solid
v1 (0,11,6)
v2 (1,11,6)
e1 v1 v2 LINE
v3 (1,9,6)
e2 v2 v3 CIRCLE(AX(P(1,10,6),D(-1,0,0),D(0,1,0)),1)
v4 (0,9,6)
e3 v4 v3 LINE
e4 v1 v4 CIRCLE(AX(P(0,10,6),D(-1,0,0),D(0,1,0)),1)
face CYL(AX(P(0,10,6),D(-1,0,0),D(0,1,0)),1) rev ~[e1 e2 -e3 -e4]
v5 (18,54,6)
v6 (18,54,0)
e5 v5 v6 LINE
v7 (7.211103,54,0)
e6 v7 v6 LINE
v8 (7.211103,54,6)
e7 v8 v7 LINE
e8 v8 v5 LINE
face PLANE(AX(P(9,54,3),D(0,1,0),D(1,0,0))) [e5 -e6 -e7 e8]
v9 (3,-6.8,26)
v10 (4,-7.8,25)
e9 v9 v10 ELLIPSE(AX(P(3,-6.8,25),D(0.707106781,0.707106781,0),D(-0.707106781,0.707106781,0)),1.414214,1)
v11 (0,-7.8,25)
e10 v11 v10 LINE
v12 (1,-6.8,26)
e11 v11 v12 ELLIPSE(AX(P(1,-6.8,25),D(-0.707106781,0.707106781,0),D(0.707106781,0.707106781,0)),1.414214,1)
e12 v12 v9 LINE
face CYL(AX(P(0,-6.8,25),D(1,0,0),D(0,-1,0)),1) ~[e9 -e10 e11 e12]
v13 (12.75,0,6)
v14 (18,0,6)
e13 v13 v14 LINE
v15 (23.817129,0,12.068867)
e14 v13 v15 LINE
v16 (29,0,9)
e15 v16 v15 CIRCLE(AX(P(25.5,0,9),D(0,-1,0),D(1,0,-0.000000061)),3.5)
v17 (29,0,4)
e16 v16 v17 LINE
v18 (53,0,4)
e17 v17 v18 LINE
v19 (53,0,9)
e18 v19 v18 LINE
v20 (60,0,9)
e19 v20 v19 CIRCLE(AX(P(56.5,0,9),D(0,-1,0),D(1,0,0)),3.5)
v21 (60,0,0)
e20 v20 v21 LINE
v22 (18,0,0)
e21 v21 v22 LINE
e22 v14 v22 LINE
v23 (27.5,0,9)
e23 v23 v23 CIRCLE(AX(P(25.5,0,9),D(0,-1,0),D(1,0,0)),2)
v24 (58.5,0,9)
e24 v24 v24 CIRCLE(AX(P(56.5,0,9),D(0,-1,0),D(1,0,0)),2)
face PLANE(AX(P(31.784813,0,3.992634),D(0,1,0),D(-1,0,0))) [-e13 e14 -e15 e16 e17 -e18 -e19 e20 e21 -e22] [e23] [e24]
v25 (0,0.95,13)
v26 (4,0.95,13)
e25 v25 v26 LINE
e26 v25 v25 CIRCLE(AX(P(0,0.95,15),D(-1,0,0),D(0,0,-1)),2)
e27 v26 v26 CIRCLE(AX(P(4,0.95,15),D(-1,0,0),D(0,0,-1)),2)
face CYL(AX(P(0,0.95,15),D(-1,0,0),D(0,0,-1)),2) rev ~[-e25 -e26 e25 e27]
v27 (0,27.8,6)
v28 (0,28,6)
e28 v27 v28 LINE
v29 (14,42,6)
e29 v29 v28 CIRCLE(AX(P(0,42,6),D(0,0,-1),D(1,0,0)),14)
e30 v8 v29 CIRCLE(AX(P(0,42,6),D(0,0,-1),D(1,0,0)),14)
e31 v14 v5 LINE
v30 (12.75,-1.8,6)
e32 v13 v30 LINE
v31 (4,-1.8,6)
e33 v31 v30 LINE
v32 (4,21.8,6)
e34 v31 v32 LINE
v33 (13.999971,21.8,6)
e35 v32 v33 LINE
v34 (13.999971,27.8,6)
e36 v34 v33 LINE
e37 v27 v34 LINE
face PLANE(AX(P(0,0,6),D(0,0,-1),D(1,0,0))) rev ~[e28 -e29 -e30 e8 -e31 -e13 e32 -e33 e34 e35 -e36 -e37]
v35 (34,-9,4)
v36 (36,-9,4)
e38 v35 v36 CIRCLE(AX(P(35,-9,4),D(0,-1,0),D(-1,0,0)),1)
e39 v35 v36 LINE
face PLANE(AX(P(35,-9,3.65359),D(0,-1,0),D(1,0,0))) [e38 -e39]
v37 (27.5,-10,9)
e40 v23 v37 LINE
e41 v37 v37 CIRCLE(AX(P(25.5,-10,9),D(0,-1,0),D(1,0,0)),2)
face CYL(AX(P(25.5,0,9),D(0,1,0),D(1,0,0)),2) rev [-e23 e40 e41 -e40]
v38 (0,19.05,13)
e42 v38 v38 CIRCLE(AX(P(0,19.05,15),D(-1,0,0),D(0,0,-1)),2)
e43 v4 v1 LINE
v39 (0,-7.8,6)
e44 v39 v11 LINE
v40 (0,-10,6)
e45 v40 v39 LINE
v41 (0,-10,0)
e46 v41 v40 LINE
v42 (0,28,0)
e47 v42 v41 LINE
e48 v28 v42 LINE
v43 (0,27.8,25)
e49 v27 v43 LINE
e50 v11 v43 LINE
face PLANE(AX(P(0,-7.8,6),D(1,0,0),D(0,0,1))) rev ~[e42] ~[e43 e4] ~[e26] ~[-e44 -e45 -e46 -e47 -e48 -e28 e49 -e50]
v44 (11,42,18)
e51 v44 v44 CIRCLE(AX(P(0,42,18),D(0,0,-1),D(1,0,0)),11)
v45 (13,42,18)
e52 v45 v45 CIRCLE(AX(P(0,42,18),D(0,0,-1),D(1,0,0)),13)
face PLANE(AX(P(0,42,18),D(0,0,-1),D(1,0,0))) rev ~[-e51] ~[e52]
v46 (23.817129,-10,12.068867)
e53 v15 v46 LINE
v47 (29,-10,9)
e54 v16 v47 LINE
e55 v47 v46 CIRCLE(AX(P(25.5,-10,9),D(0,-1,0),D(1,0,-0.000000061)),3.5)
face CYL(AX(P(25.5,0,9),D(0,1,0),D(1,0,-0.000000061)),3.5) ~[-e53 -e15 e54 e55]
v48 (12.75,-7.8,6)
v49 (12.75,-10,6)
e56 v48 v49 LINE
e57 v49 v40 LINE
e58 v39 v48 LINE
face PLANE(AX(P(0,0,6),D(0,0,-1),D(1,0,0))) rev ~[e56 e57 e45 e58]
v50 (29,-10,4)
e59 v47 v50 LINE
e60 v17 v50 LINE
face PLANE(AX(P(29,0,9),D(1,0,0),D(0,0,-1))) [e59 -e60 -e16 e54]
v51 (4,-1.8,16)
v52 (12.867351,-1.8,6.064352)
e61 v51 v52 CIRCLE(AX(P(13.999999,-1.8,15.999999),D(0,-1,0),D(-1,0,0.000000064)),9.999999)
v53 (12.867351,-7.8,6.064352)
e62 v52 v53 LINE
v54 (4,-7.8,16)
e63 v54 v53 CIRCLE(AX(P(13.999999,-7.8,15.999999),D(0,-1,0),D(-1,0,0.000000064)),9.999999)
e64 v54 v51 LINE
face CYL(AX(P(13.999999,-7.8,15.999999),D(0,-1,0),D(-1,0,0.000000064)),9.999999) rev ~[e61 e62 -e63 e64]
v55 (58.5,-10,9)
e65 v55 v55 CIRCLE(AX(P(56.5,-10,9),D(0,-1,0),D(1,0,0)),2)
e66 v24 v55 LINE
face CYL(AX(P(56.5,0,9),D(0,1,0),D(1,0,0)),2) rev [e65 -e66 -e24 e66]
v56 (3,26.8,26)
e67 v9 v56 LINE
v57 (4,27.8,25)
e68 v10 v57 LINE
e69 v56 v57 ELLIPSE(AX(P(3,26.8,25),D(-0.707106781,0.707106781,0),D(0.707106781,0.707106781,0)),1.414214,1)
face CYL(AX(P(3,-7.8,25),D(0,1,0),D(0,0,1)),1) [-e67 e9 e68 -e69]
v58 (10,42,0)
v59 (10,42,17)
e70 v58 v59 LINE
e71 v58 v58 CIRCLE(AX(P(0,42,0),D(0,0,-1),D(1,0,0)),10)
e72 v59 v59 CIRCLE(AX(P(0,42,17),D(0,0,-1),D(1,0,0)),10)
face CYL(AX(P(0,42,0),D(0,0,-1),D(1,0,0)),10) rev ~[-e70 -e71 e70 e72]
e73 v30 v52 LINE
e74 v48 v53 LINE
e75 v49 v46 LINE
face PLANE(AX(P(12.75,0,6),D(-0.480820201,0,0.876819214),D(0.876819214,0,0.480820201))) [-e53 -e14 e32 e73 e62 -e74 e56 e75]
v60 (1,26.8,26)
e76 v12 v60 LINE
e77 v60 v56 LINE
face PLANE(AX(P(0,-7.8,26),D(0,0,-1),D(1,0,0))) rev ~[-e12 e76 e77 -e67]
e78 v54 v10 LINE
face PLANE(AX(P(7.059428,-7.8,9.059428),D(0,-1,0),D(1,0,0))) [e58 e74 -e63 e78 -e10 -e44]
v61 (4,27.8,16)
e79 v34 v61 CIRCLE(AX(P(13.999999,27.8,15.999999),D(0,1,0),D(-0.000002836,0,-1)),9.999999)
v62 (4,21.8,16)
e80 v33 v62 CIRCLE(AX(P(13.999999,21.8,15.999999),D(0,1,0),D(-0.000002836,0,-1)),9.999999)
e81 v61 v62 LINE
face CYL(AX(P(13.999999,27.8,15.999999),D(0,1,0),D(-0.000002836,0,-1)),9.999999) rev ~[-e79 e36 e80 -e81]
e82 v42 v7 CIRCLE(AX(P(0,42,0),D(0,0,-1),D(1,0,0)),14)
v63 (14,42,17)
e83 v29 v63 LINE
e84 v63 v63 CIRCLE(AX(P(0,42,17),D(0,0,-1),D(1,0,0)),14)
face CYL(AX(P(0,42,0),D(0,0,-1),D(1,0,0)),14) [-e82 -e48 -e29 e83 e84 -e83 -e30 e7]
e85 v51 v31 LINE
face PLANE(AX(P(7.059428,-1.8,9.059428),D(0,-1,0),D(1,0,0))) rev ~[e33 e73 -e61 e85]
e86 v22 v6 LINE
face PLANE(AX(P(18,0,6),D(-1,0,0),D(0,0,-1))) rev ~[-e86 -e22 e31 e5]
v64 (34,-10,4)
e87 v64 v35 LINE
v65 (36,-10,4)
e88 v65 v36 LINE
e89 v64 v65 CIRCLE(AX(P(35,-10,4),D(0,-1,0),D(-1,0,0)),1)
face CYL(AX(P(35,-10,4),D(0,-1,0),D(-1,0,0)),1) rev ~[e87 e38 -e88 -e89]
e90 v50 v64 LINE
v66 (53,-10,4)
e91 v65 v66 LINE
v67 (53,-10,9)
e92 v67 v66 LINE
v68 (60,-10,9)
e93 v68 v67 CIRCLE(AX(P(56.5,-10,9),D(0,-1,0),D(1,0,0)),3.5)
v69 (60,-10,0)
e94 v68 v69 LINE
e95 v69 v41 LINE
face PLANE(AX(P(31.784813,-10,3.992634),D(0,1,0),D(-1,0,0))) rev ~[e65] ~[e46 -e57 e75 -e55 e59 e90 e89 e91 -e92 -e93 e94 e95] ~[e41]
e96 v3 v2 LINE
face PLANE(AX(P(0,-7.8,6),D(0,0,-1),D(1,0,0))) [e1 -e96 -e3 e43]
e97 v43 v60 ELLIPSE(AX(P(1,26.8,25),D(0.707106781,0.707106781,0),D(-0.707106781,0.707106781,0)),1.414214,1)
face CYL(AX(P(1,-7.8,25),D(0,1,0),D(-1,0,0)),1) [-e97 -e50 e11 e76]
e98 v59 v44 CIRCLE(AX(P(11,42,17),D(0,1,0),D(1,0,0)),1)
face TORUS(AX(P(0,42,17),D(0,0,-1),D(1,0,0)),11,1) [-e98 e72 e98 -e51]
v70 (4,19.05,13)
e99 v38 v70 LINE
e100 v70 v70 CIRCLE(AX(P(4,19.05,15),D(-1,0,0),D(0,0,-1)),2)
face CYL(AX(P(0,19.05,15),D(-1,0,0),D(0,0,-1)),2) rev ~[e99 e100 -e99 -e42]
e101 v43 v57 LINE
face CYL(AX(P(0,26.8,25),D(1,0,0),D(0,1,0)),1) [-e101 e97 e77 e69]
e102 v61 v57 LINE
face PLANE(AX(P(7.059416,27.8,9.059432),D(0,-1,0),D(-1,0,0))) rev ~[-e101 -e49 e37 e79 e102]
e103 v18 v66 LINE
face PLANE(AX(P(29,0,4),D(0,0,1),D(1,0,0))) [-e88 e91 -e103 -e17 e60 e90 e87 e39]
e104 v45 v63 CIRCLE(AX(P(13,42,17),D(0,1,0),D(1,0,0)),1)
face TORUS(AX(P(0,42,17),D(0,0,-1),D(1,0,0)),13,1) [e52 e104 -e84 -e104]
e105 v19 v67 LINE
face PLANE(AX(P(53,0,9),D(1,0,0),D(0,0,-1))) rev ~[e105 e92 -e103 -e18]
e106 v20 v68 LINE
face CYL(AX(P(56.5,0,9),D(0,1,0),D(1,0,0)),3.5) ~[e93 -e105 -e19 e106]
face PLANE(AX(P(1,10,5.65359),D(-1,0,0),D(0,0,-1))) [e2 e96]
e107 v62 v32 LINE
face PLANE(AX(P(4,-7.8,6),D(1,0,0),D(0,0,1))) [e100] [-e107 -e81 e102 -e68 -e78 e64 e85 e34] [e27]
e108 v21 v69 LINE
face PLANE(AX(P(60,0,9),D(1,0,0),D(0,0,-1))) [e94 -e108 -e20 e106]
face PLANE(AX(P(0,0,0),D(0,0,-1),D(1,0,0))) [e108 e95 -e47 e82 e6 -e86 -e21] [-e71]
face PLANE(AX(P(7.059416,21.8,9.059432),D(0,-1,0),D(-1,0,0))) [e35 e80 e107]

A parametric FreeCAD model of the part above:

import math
import FreeCAD as App
import Part
import Sketcher


def edges_at(feature, points):
    """Names of the edges that pass closest to the given points."""
    edges = feature.Shape.Edges
    near = lambda p: min(range(len(edges)), key=lambda i: edges[i].distToShape(Part.Vertex(*p))[0])
    return sorted({f"Edge{near(p) + 1}" for p in points})

doc = App.newDocument("Part")
body = doc.addObject("PartDesign::Body", "Body")

sketch1 = body.newObject("Sketcher::SketchObject", "Sketch")
sketch1.AttachmentSupport = (doc.getObject("XZ_Plane"), [""])
sketch1.MapMode = "FlatFace"
sketch1.addGeometry([
    Part.LineSegment(App.Vector(0, 0, 0), App.Vector(60, 0, 0)),
    Part.LineSegment(App.Vector(60, 0, 0), App.Vector(60, 9, 0)),
    Part.ArcOfCircle(Part.Circle(App.Vector(56.5, 9, 0), App.Vector(0, 0, 1), 3.5), math.radians(0), math.radians(180)),
    Part.LineSegment(App.Vector(53, 9, 0), App.Vector(53, 4, 0)),
    Part.LineSegment(App.Vector(53, 4, 0), App.Vector(29, 4, 0)),
    Part.LineSegment(App.Vector(29, 4, 0), App.Vector(29, 9, 0)),
    Part.ArcOfCircle(Part.Circle(App.Vector(25.5, 9, 0), App.Vector(0, 0, 1), 3.5), math.radians(0), math.radians(119)),
    Part.LineSegment(App.Vector(23.8, 12.1, 0), App.Vector(12.8, 6, 0)),
    Part.LineSegment(App.Vector(12.8, 6, 0), App.Vector(0, 6, 0)),
    Part.LineSegment(App.Vector(0, 6, 0), App.Vector(0, 0, 0)),
    Part.Circle(App.Vector(56.5, 9, 0), App.Vector(0, 0, 1), 2),
    Part.Circle(App.Vector(25.5, 9, 0), App.Vector(0, 0, 1), 2),
], False)
sketch1.addConstraint([
    Sketcher.Constraint("Coincident", 0, 2, 1, 1),
    Sketcher.Constraint("Tangent", 1, 2, 2, 1),
    Sketcher.Constraint("Tangent", 2, 2, 3, 1),
    Sketcher.Constraint("Coincident", 3, 2, 4, 1),
    Sketcher.Constraint("Coincident", 4, 2, 5, 1),
    Sketcher.Constraint("Tangent", 5, 2, 6, 1),
    Sketcher.Constraint("Tangent", 6, 2, 7, 1),
    Sketcher.Constraint("Coincident", 7, 2, 8, 1),
    Sketcher.Constraint("Coincident", 8, 2, 9, 1),
    Sketcher.Constraint("Coincident", 9, 2, 0, 1),
    Sketcher.Constraint("Horizontal", 0),
    Sketcher.Constraint("Vertical", 1),
    Sketcher.Constraint("Vertical", 3),
    Sketcher.Constraint("Horizontal", 4),
    Sketcher.Constraint("Vertical", 5),
    Sketcher.Constraint("Horizontal", 8),
    Sketcher.Constraint("Vertical", 9),
    Sketcher.Constraint("Coincident", 9, 2, -1, 1),
    Sketcher.Constraint("Coincident", 10, 3, 2, 3),
    Sketcher.Constraint("Coincident", 11, 3, 6, 3),
    Sketcher.Constraint("Equal", 2, 6),
    Sketcher.Constraint("Equal", 10, 11),
    Sketcher.Constraint("Horizontal", 2, 3, 6, 3),
    Sketcher.Constraint("Diameter", 10, 4.0),
    Sketcher.Constraint("Radius", 2, 3.5),
    Sketcher.Constraint("DistanceX", 0, 1, 0, 2, 60.0),
    Sketcher.Constraint("DistanceX", 4, 2, 4, 1, 24.0),
    Sketcher.Constraint("DistanceY", 1, 1, 1, 2, 9.0),
    Sketcher.Constraint("DistanceY", 3, 2, 3, 1, 5.0),
    Sketcher.Constraint("DistanceY", 9, 2, 9, 1, 6.0),
    Sketcher.Constraint("DistanceX", 8, 2, 8, 1, 12.75),
])
pad1 = body.newObject("PartDesign::Pad", "Pad")
pad1.Profile = sketch1
pad1.Length = 10

sketch2 = body.newObject("Sketcher::SketchObject", "Sketch001")
sketch2.AttachmentSupport = (doc.getObject("XZ_Plane"), [""])
sketch2.MapMode = "FlatFace"
sketch2.AttachmentOffset = App.Placement(App.Vector(0, 0, 10), App.Rotation())
sketch2.addGeometry([
    Part.ArcOfCircle(Part.Circle(App.Vector(35, 4, 0), App.Vector(0, 0, 1), 1), math.radians(180), math.radians(360)),
    Part.LineSegment(App.Vector(36, 4, 0), App.Vector(34, 4, 0)),
], False)
sketch2.addConstraint([
    Sketcher.Constraint("Coincident", 0, 1, 1, 2),
    Sketcher.Constraint("Coincident", 1, 1, 0, 2),
    Sketcher.Constraint("Horizontal", 1),
    Sketcher.Constraint("Radius", 0, 1.0),
    Sketcher.Constraint("DistanceX", -1, 1, 0, 3, 35.0),
    Sketcher.Constraint("DistanceY", -1, 1, 0, 3, 4.0),
    Sketcher.Constraint("DistanceY", -1, 1, 0, 1, 4.0),
])
pocket1 = body.newObject("PartDesign::Pocket", "Pocket")
pocket1.Profile = sketch2
pocket1.Length = 1

sketch3 = body.newObject("Sketcher::SketchObject", "Sketch002")
sketch3.AttachmentSupport = (doc.getObject("XZ_Plane"), [""])
sketch3.MapMode = "FlatFace"
sketch3.addGeometry([
    Part.LineSegment(App.Vector(0, 0, 0), App.Vector(0, 6, 0)),
    Part.LineSegment(App.Vector(0, 6, 0), App.Vector(18, 6, 0)),
    Part.LineSegment(App.Vector(18, 6, 0), App.Vector(18, 0, 0)),
    Part.LineSegment(App.Vector(18, 0, 0), App.Vector(0, 0, 0)),
], False)
sketch3.addConstraint([
    Sketcher.Constraint("Coincident", 0, 2, 1, 1),
    Sketcher.Constraint("Coincident", 1, 2, 2, 1),
    Sketcher.Constraint("Coincident", 2, 2, 3, 1),
    Sketcher.Constraint("Coincident", 3, 2, 0, 1),
    Sketcher.Constraint("Vertical", 0),
    Sketcher.Constraint("Horizontal", 1),
    Sketcher.Constraint("Vertical", 2),
    Sketcher.Constraint("Horizontal", 3),
    Sketcher.Constraint("Coincident", 3, 2, -1, 1),
    Sketcher.Constraint("DistanceX", 1, 1, 1, 2, 18.0),
    Sketcher.Constraint("DistanceY", 0, 1, 0, 2, 6.0),
])
pad2 = body.newObject("PartDesign::Pad", "Pad001")
pad2.Profile = sketch3
pad2.Length = 54
pad2.Reversed = True

sketch4 = body.newObject("Sketcher::SketchObject", "Sketch003")
sketch4.AttachmentSupport = (doc.getObject("YZ_Plane"), [""])
sketch4.MapMode = "FlatFace"
sketch4.addGeometry([
    Part.LineSegment(App.Vector(9, 6, 0), App.Vector(11, 6, 0)),
    Part.ArcOfCircle(Part.Circle(App.Vector(10, 6, 0), App.Vector(0, 0, 1), 1), math.radians(180), math.radians(360)),
], False)
sketch4.addConstraint([
    Sketcher.Constraint("Coincident", 0, 1, 1, 1),
    Sketcher.Constraint("Coincident", 1, 2, 0, 2),
    Sketcher.Constraint("Horizontal", 0),
    Sketcher.Constraint("Horizontal", 1, 3, 0, 1),
    Sketcher.Constraint("Radius", 1, 1.0),
    Sketcher.Constraint("DistanceX", -1, 1, 1, 3, 10.0),
    Sketcher.Constraint("DistanceY", -1, 1, 1, 3, 6.0),
])
pocket2 = body.newObject("PartDesign::Pocket", "Pocket001")
pocket2.Profile = sketch4
pocket2.Length = 1
pocket2.Reversed = True

sketch5 = body.newObject("Sketcher::SketchObject", "Sketch004")
sketch5.AttachmentSupport = (doc.getObject("XY_Plane"), [""])
sketch5.MapMode = "FlatFace"
sketch5.addGeometry(Part.Circle(App.Vector(0, 42, 0), App.Vector(0, 0, 1), 14), False)
sketch5.addConstraint([
    Sketcher.Constraint("PointOnObject", 0, 3, -2),
    Sketcher.Constraint("Diameter", 0, 28.0),
    Sketcher.Constraint("DistanceY", -1, 1, 0, 3, 42.0),
])
pad3 = body.newObject("PartDesign::Pad", "Pad002")
pad3.Profile = sketch5
pad3.Length = 18

sketch6 = body.newObject("Sketcher::SketchObject", "Sketch005")
sketch6.AttachmentSupport = (doc.getObject("XY_Plane"), [""])
sketch6.MapMode = "FlatFace"
sketch6.addGeometry(Part.Circle(App.Vector(0, 42, 0), App.Vector(0, 0, 1), 10), False)
sketch6.addConstraint([
    Sketcher.Constraint("PointOnObject", 0, 3, -2),
    Sketcher.Constraint("Diameter", 0, 20.0),
    Sketcher.Constraint("DistanceY", -1, 1, 0, 3, 42.0),
])
pocket3 = body.newObject("PartDesign::Pocket", "Pocket002")
pocket3.Profile = sketch6
pocket3.Type = "ThroughAll"
pocket3.Reversed = True

sketch7 = body.newObject("Sketcher::SketchObject", "Sketch006")
sketch7.AttachmentSupport = (doc.getObject("XZ_Plane"), [""])
sketch7.MapMode = "FlatFace"
sketch7.AttachmentOffset = App.Placement(App.Vector(0, 0, 7.8), App.Rotation())
sketch7.addGeometry([
    Part.LineSegment(App.Vector(0, 26, 0), App.Vector(0, 6, 0)),
    Part.LineSegment(App.Vector(0, 6, 0), App.Vector(4, 6, 0)),
    Part.LineSegment(App.Vector(4, 6, 0), App.Vector(4, 26, 0)),
    Part.LineSegment(App.Vector(4, 26, 0), App.Vector(0, 26, 0)),
], False)
sketch7.addConstraint([
    Sketcher.Constraint("Coincident", 0, 2, 1, 1),
    Sketcher.Constraint("Coincident", 1, 2, 2, 1),
    Sketcher.Constraint("Coincident", 2, 2, 3, 1),
    Sketcher.Constraint("Coincident", 3, 2, 0, 1),
    Sketcher.Constraint("Vertical", 0),
    Sketcher.Constraint("Horizontal", 1),
    Sketcher.Constraint("Vertical", 2),
    Sketcher.Constraint("Horizontal", 3),
    Sketcher.Constraint("PointOnObject", 0, 2, -2),
    Sketcher.Constraint("DistanceX", 1, 1, 1, 2, 4.0),
    Sketcher.Constraint("DistanceY", 0, 2, 0, 1, 20.0),
    Sketcher.Constraint("DistanceY", -1, 1, 0, 2, 6.0),
])
pad4 = body.newObject("PartDesign::Pad", "Pad003")
pad4.Profile = sketch7
pad4.Length = 35.6
pad4.Reversed = True

sketch8 = body.newObject("Sketcher::SketchObject", "Sketch007")
sketch8.AttachmentSupport = (doc.getObject("YZ_Plane"), [""])
sketch8.MapMode = "FlatFace"
sketch8.addGeometry(Part.Circle(App.Vector(0.9, 15, 0), App.Vector(0, 0, 1), 2), False)
sketch8.addConstraint([
    Sketcher.Constraint("Diameter", 0, 4.0),
    Sketcher.Constraint("DistanceY", -1, 1, 0, 3, 15.0),
    Sketcher.Constraint("DistanceX", -1, 1, 0, 3, 0.95),
])
pocket4 = body.newObject("PartDesign::Pocket", "Pocket003")
pocket4.Profile = sketch8
pocket4.Length = 4
pocket4.Reversed = True

sketch9 = body.newObject("Sketcher::SketchObject", "Sketch008")
sketch9.AttachmentSupport = (doc.getObject("YZ_Plane"), [""])
sketch9.MapMode = "FlatFace"
sketch9.addGeometry(Part.Circle(App.Vector(19.1, 15, 0), App.Vector(0, 0, 1), 2), False)
sketch9.addConstraint([
    Sketcher.Constraint("Diameter", 0, 4.0),
    Sketcher.Constraint("DistanceY", -1, 1, 0, 3, 15.0),
    Sketcher.Constraint("DistanceX", -1, 1, 0, 3, 19.05),
])
pocket5 = body.newObject("PartDesign::Pocket", "Pocket004")
pocket5.Profile = sketch9
pocket5.Length = 4
pocket5.Reversed = True

sketch10 = body.newObject("Sketcher::SketchObject", "Sketch009")
sketch10.AttachmentSupport = (doc.getObject("XZ_Plane"), [""])
sketch10.MapMode = "FlatFace"
sketch10.AttachmentOffset = App.Placement(App.Vector(0, 0, 7.8), App.Rotation())
sketch10.addGeometry([
    Part.LineSegment(App.Vector(4, 16, 0), App.Vector(4, 6, 0)),
    Part.LineSegment(App.Vector(4, 6, 0), App.Vector(14, 6, 0)),
    Part.ArcOfCircle(Part.Circle(App.Vector(14, 16, 0), App.Vector(0, 0, 1), 10), math.radians(180), math.radians(270)),
], False)
sketch10.addConstraint([
    Sketcher.Constraint("Coincident", 0, 2, 1, 1),
    Sketcher.Constraint("Tangent", 1, 2, 2, 2),
    Sketcher.Constraint("Tangent", 2, 1, 0, 1),
    Sketcher.Constraint("Vertical", 0),
    Sketcher.Constraint("Horizontal", 1),
    Sketcher.Constraint("Radius", 2, 9.999999),
    Sketcher.Constraint("DistanceX", -1, 1, 2, 3, 13.999999),
    Sketcher.Constraint("DistanceY", -1, 1, 2, 3, 15.999999),
])
pad5 = body.newObject("PartDesign::Pad", "Pad004")
pad5.Profile = sketch10
pad5.Length = 6
pad5.Reversed = True

sketch11 = body.newObject("Sketcher::SketchObject", "Sketch010")
sketch11.AttachmentSupport = (doc.getObject("XZ_Plane"), [""])
sketch11.MapMode = "FlatFace"
sketch11.AttachmentOffset = App.Placement(App.Vector(0, 0, -27.8), App.Rotation())
sketch11.addGeometry([
    Part.LineSegment(App.Vector(4, 6, 0), App.Vector(4, 16, 0)),
    Part.ArcOfCircle(Part.Circle(App.Vector(13.999999, 15.999999, 0), App.Vector(0, 0, 1), 9.999999), math.radians(179.999996), math.radians(269.999838)),
    Part.LineSegment(App.Vector(13.999971, 6, 0), App.Vector(4, 6, 0)),
], False)
sketch11.addConstraint([
    Sketcher.Constraint("Tangent", 0, 2, 1, 1),
    Sketcher.Constraint("Coincident", 1, 2, 2, 1),
    Sketcher.Constraint("Coincident", 2, 2, 0, 1),
    Sketcher.Constraint("Vertical", 0),
    Sketcher.Constraint("Horizontal", 2),
    Sketcher.Constraint("Radius", 1, 9.999999),
    Sketcher.Constraint("DistanceX", -1, 1, 1, 3, 13.999999),
    Sketcher.Constraint("DistanceY", -1, 1, 1, 3, 15.999999),
    Sketcher.Constraint("DistanceX", 2, 2, 2, 1, 9.999971),
])
pad6 = body.newObject("PartDesign::Pad", "Pad005")
pad6.Profile = sketch11
pad6.Length = 6
doc.recompute()

fillet = body.newObject("PartDesign::Fillet", "Fillet")
fillet.Base = (pad6, edges_at(pad6, [
    (4, 10, 26),
    (0, 10, 26),
    (2, -7.8, 26),
    (2, 27.8, 26),
    (-14, 42, 18),
    (-10, 42, 18),
]))
fillet.Radius = 1

doc.recompute()
